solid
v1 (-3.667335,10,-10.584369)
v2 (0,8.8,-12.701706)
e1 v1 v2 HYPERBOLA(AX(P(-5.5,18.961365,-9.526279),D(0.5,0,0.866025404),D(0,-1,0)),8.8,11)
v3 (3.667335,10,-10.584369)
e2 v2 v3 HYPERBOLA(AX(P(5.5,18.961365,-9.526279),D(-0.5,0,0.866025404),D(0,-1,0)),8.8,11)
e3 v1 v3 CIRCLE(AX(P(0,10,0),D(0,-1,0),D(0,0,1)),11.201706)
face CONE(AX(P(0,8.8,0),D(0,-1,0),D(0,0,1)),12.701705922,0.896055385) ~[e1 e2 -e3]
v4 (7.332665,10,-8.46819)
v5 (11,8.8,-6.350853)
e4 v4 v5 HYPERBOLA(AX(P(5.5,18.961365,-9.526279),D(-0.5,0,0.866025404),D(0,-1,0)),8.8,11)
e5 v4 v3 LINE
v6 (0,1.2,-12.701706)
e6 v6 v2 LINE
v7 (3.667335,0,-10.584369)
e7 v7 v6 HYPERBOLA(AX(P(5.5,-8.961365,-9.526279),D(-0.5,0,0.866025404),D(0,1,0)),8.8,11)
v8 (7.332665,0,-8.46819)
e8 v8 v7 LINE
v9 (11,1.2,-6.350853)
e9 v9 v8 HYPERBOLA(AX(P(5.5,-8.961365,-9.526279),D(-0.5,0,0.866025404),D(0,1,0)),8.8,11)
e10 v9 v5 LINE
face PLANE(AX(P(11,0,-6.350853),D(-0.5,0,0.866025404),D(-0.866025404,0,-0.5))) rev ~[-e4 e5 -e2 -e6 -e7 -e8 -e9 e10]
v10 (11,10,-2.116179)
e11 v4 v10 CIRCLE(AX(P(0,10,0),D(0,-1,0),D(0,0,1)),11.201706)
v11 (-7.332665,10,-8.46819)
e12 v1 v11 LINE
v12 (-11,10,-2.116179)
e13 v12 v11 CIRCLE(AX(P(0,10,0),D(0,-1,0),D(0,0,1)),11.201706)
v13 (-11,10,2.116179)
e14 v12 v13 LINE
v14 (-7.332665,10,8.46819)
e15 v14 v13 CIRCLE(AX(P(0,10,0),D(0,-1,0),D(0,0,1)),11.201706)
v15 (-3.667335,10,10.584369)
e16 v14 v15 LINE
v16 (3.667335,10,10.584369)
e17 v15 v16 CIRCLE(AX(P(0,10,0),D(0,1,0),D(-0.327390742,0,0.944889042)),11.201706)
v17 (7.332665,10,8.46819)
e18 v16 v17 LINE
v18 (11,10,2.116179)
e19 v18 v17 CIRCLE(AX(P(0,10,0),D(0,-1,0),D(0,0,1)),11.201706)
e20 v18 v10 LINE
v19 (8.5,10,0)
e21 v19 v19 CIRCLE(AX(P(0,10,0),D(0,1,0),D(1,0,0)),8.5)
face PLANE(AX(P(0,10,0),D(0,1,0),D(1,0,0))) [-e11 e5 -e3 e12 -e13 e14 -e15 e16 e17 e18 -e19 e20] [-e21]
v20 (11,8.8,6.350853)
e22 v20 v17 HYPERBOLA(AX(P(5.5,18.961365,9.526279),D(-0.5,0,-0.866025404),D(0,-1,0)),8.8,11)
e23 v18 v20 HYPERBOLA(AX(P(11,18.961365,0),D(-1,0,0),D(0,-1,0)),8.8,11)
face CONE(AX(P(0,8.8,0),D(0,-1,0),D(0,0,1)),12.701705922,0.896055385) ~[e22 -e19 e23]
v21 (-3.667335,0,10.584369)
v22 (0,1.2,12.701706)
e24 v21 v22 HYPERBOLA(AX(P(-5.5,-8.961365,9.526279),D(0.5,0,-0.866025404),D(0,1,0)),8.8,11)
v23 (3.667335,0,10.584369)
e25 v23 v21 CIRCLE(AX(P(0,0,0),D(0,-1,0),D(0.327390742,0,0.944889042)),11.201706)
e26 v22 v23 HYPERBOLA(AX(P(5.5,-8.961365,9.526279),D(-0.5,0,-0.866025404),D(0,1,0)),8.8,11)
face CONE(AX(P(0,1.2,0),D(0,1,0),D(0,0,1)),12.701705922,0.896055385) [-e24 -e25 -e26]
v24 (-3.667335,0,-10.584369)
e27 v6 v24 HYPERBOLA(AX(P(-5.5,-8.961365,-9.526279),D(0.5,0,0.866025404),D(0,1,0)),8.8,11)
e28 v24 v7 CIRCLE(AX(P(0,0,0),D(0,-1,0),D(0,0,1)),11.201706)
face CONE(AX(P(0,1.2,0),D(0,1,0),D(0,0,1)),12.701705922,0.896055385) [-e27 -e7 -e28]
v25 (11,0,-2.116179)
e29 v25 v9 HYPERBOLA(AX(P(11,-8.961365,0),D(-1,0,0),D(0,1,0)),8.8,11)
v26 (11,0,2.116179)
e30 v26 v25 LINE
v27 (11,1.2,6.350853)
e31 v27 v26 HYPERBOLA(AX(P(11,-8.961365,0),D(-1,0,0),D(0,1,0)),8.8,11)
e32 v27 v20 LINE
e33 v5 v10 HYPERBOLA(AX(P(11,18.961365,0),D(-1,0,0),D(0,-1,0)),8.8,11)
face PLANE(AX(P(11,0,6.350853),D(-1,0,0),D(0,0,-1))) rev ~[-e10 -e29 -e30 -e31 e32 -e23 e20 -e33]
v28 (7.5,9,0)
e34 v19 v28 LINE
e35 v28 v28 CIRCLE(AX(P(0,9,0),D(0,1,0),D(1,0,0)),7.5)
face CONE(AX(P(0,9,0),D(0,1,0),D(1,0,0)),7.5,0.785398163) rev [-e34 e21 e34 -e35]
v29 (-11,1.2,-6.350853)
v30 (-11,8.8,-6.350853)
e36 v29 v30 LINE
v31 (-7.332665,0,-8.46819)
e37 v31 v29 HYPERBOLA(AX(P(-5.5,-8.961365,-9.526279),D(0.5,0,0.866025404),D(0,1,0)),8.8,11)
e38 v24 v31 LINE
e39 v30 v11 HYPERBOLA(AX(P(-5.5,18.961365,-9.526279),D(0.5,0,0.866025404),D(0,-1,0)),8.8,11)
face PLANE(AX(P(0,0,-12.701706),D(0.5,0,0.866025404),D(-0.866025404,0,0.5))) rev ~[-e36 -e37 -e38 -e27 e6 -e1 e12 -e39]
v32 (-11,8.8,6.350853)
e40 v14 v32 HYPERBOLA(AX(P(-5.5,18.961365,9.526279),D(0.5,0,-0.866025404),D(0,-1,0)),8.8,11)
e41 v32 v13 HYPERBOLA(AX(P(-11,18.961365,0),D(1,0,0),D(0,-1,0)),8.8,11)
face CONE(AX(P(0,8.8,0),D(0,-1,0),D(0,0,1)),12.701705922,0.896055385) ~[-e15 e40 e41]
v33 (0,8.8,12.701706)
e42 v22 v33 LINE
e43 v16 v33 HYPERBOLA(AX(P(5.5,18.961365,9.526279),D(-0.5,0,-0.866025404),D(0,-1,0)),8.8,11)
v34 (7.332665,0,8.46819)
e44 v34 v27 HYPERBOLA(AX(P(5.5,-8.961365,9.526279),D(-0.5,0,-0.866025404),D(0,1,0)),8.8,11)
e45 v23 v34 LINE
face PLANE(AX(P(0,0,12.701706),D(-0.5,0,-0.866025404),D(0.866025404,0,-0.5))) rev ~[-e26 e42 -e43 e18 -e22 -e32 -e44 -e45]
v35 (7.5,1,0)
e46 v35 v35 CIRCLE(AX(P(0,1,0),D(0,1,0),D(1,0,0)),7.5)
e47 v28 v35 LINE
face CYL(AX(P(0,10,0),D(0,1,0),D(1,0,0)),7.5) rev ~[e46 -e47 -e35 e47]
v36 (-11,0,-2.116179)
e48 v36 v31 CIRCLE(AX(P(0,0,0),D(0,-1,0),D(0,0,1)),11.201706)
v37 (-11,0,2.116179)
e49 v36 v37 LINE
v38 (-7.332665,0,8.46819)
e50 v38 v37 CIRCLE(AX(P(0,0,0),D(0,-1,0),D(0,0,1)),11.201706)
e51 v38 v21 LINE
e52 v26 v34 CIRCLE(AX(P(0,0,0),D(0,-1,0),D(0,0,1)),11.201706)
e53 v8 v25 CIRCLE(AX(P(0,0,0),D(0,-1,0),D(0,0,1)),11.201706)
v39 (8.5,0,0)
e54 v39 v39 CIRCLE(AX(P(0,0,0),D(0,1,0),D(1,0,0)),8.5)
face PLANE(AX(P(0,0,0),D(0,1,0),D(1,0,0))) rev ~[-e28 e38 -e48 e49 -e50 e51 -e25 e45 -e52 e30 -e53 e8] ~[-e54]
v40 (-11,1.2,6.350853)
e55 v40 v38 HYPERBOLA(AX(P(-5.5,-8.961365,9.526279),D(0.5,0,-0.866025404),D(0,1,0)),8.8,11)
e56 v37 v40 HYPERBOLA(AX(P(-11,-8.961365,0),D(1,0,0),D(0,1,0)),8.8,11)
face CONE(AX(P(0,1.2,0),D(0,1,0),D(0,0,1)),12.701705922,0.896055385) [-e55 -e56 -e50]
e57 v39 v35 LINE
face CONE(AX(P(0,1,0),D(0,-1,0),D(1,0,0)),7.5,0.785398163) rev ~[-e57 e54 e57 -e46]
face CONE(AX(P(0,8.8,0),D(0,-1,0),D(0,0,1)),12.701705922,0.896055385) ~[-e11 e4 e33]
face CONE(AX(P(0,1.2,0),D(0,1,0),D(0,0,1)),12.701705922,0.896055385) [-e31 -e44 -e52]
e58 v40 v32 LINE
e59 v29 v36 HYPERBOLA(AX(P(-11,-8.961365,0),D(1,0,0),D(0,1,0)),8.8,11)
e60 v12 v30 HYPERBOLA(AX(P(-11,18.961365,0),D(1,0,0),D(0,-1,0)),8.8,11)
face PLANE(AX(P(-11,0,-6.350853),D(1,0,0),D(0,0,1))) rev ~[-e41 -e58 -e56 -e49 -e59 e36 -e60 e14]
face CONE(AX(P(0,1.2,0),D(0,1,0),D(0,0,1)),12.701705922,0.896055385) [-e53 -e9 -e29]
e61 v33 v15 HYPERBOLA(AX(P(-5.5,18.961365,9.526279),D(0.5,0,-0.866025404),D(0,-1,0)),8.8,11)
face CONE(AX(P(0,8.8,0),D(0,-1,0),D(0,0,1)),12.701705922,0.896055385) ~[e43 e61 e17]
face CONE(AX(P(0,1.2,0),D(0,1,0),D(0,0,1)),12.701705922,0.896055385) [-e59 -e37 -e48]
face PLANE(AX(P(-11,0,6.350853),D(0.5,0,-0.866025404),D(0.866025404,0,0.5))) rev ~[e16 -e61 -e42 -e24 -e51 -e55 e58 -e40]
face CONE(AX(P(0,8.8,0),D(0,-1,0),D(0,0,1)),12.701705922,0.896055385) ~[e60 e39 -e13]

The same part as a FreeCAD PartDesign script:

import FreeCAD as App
import Part
import Sketcher
Q = App.Units.Quantity


def edges_at(feature, points):
    """Names of the edges that pass closest to the given points."""
    edges = feature.Shape.Edges
    near = lambda p: min(range(len(edges)), key=lambda i: edges[i].distToShape(Part.Vertex(*p))[0])
    return sorted({f"Edge{near(p) + 1}" for p in points})


def add_polygon(sketch, points):
    """Adds a closed chain of lines whose ends are joined by coincident constraints."""
    first, n = sketch.GeometryCount, len(points)
    for a, b in zip(points, points[1:] + points[:1]):
        sketch.addGeometry(Part.LineSegment(App.Vector(*a, 0), App.Vector(*b, 0)), False)
    for i in range(n):
        sketch.addConstraint(Sketcher.Constraint("Coincident", first + i, 2, first + (i + 1) % n, 1))

doc = App.newDocument("Part")
body = doc.addObject("PartDesign::Body", "Body")

sketch1 = body.newObject("Sketcher::SketchObject", "Sketch")
sketch1.AttachmentSupport = (doc.getObject("XZ_Plane"), [""])
sketch1.MapMode = "FlatFace"
add_polygon(sketch1, [(-11, -6.350853), (-11, 6.350853), (0, 12.701706), (11, 6.350853), (11, -6.350853), (0, -12.701706)])
sketch1.addConstraint(Sketcher.Constraint("Vertical", 0))
sketch1.addConstraint(Sketcher.Constraint("Vertical", 3))
sketch1.addConstraint(Sketcher.Constraint("Symmetric", 0, 2, 3, 2, -1, 1))
sketch1.addConstraint(Sketcher.Constraint("Symmetric", 1, 2, 4, 2, -1, 1))
sketch1.addConstraint(Sketcher.Constraint("PointOnObject", 1, 2, -2))
sketch1.addConstraint(Sketcher.Constraint("Parallel", 2, 5))
sketch1.addConstraint(Sketcher.Constraint("Horizontal", 0, 2, 2, 2))
sketch1.addConstraint(Sketcher.Constraint("Angle", 1, Q("30 deg")))
sketch1.addConstraint(Sketcher.Constraint("DistanceX", 0, 2, -1, 1, Q("11 mm")))
sketch1.addConstraint(Sketcher.Constraint("DistanceY", 0, 1, 0, 2, Q("12.701706 mm")))
pad1 = body.newObject("PartDesign::Pad", "Pad")
pad1.Profile = sketch1
pad1.Length = 10
pad1.Reversed = True

sketch2 = body.newObject("Sketcher::SketchObject", "Sketch001")
sketch2.AttachmentSupport = (doc.getObject("XZ_Plane"), [""])
sketch2.MapMode = "FlatFace"
sketch2.AttachmentOffset = App.Placement(App.Vector(0, 0, -10), App.Rotation())
sketch2.addGeometry(Part.Circle(App.Vector(0, 0, 0), App.Vector(0, 0, 1), 7.5), False)
sketch2.addConstraint(Sketcher.Constraint("Coincident", 0, 3, -1, 1))
sketch2.addConstraint(Sketcher.Constraint("Diameter", 0, Q("15 mm")))
pocket1 = body.newObject("PartDesign::Pocket", "Pocket")
pocket1.Profile = sketch2
pocket1.Type = "ThroughAll"
pocket1.Reversed = True
doc.recompute()

chamfer = body.newObject("PartDesign::Chamfer", "Chamfer")
chamfer.Base = (pocket1, edges_at(pocket1, [(-7.5, 0, 0), (-7.5, 10, 0)]))
chamfer.Size = 1

sketch3 = body.newObject("Sketcher::SketchObject", "Sketch002")
sketch3.AttachmentSupport = (doc.getObject("YZ_Plane"), [""])
sketch3.MapMode = "FlatFace"
add_polygon(sketch3, [(10, 12.701706), (8.8, 12.701706), (10, 11.201706)])
add_polygon(sketch3, [(1.2, 12.701706), (0, 12.701706), (0, 11.201706)])
sketch3.addConstraint(Sketcher.Constraint("Horizontal", 0))
sketch3.addConstraint(Sketcher.Constraint("Vertical", 2))
sketch3.addConstraint(Sketcher.Constraint("Horizontal", 3))
sketch3.addConstraint(Sketcher.Constraint("Vertical", 4))
sketch3.addConstraint(Sketcher.Constraint("PointOnObject", 3, 2, -2))
sketch3.addConstraint(Sketcher.Constraint("Horizontal", 2, 2, 3, 2))
sketch3.addConstraint(Sketcher.Constraint("Horizontal", 1, 2, 4, 2))
sketch3.addConstraint(Sketcher.Constraint("Equal", 0, 3))
sketch3.addConstraint(Sketcher.Constraint("DistanceX", 0, 2, 0, 1, Q("1.2 mm")))
sketch3.addConstraint(Sketcher.Constraint("DistanceY", 2, 1, 2, 2, Q("1.5 mm")))
sketch3.addConstraint(Sketcher.Constraint("DistanceX", -1, 1, 1, 2, Q("10 mm")))
sketch3.addConstraint(Sketcher.Constraint("DistanceY", -1, 1, 0, 2, Q("12.701706 mm")))
groove = body.newObject("PartDesign::Groove", "Groove")
groove.Profile = sketch3
groove.ReferenceAxis = (sketch3, ["H_Axis"])
groove.Angle = 360

doc.recompute()
